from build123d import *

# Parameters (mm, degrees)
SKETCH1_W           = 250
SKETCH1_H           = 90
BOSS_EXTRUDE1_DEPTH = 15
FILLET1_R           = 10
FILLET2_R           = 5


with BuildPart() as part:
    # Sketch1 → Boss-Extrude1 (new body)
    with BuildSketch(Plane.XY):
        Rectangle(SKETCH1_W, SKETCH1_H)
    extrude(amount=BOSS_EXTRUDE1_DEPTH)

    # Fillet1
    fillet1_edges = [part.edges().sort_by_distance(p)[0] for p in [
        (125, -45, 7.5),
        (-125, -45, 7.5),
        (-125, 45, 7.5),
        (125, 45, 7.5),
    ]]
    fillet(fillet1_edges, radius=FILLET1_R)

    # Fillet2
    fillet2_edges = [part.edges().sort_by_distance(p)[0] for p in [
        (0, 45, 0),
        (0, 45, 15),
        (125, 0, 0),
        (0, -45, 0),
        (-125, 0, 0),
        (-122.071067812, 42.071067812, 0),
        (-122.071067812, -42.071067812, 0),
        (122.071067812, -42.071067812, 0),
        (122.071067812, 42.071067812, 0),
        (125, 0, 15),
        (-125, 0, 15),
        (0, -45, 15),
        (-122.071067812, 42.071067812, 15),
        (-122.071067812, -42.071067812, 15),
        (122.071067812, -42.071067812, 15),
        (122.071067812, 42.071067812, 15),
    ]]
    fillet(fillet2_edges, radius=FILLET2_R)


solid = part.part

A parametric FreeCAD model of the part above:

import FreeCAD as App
import Part
import Sketcher
from FreeCAD import Vector
Q = App.Units.Quantity


def edges_at(feature, points):
    """Names of the edges that pass closest to the given points."""
    edges = feature.Shape.Edges
    near = lambda p: min(range(len(edges)), key=lambda i: edges[i].distToShape(Part.Vertex(*p))[0])
    return sorted({f"Edge{near(p) + 1}" for p in points})


def add_polygon(sketch, points):
    """Adds a closed chain of lines whose ends are joined by coincident constraints."""
    first, n = sketch.GeometryCount, len(points)
    for a, b in zip(points, points[1:] + points[:1]):
        sketch.addGeometry(Part.LineSegment(App.Vector(*a, 0), App.Vector(*b, 0)), False)
    for i in range(n):
        sketch.addConstraint(Sketcher.Constraint("Coincident", first + i, 2, first + (i + 1) % n, 1))

doc = App.newDocument("Part")
body = doc.addObject("PartDesign::Body", "Body")

# Sketch on XY plane
sketch1 = doc.addObject("Sketcher::SketchObject", "Sketch")
body.addObject(sketch1)
sketch1.AttachmentSupport = (doc.XY_Plane, [""])
sketch1.MapMode = "FlatFace"
add_polygon(sketch1, [(-125, 45), (-125, -45), (125, -45), (125, 45)])  # lines 0-3
sketch1.addConstraint([
    Sketcher.Constraint("Vertical", 0),
    Sketcher.Constraint("Horizontal", 1),
    Sketcher.Constraint("Vertical", 2),
    Sketcher.Constraint("Horizontal", 3),
    Sketcher.Constraint("Symmetric", 0, 2, 2, 2, -1, 1),
    Sketcher.Constraint("DistanceX", 1, 1, 1, 2, Q("250 mm")),
    Sketcher.Constraint("DistanceY", 0, 2, 0, 1, Q("90 mm")),
])
pad1 = doc.addObject("PartDesign::Pad", "Pad")
body.addObject(pad1)
pad1.Profile = sketch1
pad1.Length = 15
doc.recompute()

fillet = doc.addObject("PartDesign::Fillet", "Fillet")
body.addObject(fillet)
fillet.Base = (pad1, edges_at(pad1, [
    (125, -45, 7.5),
    (-125, -45, 7.5),
    (-125, 45, 7.5),
    (125, 45, 7.5),
]))
fillet.Radius = 10
doc.recompute()

fillet2 = doc.addObject("PartDesign::Fillet", "Fillet001")
body.addObject(fillet2)
fillet2.Base = (fillet, edges_at(fillet, [
    (0, 45, 0),
    (0, 45, 15),
    (125, 0, 0),
    (0, -45, 0),
    (-125, 0, 0),
    (-122.071, 42.071, 0),
    (-122.071, -42.071, 0),
    (122.071, -42.071, 0),
    (122.071, 42.071, 0),
    (125, 0, 15),
    (-125, 0, 15),
    (0, -45, 15),
    (-122.071, 42.071, 15),
    (-122.071, -42.071, 15),
    (122.071, -42.071, 15),
    (122.071, 42.071, 15),
]))
fillet2.Radius = 5

doc.recompute()
